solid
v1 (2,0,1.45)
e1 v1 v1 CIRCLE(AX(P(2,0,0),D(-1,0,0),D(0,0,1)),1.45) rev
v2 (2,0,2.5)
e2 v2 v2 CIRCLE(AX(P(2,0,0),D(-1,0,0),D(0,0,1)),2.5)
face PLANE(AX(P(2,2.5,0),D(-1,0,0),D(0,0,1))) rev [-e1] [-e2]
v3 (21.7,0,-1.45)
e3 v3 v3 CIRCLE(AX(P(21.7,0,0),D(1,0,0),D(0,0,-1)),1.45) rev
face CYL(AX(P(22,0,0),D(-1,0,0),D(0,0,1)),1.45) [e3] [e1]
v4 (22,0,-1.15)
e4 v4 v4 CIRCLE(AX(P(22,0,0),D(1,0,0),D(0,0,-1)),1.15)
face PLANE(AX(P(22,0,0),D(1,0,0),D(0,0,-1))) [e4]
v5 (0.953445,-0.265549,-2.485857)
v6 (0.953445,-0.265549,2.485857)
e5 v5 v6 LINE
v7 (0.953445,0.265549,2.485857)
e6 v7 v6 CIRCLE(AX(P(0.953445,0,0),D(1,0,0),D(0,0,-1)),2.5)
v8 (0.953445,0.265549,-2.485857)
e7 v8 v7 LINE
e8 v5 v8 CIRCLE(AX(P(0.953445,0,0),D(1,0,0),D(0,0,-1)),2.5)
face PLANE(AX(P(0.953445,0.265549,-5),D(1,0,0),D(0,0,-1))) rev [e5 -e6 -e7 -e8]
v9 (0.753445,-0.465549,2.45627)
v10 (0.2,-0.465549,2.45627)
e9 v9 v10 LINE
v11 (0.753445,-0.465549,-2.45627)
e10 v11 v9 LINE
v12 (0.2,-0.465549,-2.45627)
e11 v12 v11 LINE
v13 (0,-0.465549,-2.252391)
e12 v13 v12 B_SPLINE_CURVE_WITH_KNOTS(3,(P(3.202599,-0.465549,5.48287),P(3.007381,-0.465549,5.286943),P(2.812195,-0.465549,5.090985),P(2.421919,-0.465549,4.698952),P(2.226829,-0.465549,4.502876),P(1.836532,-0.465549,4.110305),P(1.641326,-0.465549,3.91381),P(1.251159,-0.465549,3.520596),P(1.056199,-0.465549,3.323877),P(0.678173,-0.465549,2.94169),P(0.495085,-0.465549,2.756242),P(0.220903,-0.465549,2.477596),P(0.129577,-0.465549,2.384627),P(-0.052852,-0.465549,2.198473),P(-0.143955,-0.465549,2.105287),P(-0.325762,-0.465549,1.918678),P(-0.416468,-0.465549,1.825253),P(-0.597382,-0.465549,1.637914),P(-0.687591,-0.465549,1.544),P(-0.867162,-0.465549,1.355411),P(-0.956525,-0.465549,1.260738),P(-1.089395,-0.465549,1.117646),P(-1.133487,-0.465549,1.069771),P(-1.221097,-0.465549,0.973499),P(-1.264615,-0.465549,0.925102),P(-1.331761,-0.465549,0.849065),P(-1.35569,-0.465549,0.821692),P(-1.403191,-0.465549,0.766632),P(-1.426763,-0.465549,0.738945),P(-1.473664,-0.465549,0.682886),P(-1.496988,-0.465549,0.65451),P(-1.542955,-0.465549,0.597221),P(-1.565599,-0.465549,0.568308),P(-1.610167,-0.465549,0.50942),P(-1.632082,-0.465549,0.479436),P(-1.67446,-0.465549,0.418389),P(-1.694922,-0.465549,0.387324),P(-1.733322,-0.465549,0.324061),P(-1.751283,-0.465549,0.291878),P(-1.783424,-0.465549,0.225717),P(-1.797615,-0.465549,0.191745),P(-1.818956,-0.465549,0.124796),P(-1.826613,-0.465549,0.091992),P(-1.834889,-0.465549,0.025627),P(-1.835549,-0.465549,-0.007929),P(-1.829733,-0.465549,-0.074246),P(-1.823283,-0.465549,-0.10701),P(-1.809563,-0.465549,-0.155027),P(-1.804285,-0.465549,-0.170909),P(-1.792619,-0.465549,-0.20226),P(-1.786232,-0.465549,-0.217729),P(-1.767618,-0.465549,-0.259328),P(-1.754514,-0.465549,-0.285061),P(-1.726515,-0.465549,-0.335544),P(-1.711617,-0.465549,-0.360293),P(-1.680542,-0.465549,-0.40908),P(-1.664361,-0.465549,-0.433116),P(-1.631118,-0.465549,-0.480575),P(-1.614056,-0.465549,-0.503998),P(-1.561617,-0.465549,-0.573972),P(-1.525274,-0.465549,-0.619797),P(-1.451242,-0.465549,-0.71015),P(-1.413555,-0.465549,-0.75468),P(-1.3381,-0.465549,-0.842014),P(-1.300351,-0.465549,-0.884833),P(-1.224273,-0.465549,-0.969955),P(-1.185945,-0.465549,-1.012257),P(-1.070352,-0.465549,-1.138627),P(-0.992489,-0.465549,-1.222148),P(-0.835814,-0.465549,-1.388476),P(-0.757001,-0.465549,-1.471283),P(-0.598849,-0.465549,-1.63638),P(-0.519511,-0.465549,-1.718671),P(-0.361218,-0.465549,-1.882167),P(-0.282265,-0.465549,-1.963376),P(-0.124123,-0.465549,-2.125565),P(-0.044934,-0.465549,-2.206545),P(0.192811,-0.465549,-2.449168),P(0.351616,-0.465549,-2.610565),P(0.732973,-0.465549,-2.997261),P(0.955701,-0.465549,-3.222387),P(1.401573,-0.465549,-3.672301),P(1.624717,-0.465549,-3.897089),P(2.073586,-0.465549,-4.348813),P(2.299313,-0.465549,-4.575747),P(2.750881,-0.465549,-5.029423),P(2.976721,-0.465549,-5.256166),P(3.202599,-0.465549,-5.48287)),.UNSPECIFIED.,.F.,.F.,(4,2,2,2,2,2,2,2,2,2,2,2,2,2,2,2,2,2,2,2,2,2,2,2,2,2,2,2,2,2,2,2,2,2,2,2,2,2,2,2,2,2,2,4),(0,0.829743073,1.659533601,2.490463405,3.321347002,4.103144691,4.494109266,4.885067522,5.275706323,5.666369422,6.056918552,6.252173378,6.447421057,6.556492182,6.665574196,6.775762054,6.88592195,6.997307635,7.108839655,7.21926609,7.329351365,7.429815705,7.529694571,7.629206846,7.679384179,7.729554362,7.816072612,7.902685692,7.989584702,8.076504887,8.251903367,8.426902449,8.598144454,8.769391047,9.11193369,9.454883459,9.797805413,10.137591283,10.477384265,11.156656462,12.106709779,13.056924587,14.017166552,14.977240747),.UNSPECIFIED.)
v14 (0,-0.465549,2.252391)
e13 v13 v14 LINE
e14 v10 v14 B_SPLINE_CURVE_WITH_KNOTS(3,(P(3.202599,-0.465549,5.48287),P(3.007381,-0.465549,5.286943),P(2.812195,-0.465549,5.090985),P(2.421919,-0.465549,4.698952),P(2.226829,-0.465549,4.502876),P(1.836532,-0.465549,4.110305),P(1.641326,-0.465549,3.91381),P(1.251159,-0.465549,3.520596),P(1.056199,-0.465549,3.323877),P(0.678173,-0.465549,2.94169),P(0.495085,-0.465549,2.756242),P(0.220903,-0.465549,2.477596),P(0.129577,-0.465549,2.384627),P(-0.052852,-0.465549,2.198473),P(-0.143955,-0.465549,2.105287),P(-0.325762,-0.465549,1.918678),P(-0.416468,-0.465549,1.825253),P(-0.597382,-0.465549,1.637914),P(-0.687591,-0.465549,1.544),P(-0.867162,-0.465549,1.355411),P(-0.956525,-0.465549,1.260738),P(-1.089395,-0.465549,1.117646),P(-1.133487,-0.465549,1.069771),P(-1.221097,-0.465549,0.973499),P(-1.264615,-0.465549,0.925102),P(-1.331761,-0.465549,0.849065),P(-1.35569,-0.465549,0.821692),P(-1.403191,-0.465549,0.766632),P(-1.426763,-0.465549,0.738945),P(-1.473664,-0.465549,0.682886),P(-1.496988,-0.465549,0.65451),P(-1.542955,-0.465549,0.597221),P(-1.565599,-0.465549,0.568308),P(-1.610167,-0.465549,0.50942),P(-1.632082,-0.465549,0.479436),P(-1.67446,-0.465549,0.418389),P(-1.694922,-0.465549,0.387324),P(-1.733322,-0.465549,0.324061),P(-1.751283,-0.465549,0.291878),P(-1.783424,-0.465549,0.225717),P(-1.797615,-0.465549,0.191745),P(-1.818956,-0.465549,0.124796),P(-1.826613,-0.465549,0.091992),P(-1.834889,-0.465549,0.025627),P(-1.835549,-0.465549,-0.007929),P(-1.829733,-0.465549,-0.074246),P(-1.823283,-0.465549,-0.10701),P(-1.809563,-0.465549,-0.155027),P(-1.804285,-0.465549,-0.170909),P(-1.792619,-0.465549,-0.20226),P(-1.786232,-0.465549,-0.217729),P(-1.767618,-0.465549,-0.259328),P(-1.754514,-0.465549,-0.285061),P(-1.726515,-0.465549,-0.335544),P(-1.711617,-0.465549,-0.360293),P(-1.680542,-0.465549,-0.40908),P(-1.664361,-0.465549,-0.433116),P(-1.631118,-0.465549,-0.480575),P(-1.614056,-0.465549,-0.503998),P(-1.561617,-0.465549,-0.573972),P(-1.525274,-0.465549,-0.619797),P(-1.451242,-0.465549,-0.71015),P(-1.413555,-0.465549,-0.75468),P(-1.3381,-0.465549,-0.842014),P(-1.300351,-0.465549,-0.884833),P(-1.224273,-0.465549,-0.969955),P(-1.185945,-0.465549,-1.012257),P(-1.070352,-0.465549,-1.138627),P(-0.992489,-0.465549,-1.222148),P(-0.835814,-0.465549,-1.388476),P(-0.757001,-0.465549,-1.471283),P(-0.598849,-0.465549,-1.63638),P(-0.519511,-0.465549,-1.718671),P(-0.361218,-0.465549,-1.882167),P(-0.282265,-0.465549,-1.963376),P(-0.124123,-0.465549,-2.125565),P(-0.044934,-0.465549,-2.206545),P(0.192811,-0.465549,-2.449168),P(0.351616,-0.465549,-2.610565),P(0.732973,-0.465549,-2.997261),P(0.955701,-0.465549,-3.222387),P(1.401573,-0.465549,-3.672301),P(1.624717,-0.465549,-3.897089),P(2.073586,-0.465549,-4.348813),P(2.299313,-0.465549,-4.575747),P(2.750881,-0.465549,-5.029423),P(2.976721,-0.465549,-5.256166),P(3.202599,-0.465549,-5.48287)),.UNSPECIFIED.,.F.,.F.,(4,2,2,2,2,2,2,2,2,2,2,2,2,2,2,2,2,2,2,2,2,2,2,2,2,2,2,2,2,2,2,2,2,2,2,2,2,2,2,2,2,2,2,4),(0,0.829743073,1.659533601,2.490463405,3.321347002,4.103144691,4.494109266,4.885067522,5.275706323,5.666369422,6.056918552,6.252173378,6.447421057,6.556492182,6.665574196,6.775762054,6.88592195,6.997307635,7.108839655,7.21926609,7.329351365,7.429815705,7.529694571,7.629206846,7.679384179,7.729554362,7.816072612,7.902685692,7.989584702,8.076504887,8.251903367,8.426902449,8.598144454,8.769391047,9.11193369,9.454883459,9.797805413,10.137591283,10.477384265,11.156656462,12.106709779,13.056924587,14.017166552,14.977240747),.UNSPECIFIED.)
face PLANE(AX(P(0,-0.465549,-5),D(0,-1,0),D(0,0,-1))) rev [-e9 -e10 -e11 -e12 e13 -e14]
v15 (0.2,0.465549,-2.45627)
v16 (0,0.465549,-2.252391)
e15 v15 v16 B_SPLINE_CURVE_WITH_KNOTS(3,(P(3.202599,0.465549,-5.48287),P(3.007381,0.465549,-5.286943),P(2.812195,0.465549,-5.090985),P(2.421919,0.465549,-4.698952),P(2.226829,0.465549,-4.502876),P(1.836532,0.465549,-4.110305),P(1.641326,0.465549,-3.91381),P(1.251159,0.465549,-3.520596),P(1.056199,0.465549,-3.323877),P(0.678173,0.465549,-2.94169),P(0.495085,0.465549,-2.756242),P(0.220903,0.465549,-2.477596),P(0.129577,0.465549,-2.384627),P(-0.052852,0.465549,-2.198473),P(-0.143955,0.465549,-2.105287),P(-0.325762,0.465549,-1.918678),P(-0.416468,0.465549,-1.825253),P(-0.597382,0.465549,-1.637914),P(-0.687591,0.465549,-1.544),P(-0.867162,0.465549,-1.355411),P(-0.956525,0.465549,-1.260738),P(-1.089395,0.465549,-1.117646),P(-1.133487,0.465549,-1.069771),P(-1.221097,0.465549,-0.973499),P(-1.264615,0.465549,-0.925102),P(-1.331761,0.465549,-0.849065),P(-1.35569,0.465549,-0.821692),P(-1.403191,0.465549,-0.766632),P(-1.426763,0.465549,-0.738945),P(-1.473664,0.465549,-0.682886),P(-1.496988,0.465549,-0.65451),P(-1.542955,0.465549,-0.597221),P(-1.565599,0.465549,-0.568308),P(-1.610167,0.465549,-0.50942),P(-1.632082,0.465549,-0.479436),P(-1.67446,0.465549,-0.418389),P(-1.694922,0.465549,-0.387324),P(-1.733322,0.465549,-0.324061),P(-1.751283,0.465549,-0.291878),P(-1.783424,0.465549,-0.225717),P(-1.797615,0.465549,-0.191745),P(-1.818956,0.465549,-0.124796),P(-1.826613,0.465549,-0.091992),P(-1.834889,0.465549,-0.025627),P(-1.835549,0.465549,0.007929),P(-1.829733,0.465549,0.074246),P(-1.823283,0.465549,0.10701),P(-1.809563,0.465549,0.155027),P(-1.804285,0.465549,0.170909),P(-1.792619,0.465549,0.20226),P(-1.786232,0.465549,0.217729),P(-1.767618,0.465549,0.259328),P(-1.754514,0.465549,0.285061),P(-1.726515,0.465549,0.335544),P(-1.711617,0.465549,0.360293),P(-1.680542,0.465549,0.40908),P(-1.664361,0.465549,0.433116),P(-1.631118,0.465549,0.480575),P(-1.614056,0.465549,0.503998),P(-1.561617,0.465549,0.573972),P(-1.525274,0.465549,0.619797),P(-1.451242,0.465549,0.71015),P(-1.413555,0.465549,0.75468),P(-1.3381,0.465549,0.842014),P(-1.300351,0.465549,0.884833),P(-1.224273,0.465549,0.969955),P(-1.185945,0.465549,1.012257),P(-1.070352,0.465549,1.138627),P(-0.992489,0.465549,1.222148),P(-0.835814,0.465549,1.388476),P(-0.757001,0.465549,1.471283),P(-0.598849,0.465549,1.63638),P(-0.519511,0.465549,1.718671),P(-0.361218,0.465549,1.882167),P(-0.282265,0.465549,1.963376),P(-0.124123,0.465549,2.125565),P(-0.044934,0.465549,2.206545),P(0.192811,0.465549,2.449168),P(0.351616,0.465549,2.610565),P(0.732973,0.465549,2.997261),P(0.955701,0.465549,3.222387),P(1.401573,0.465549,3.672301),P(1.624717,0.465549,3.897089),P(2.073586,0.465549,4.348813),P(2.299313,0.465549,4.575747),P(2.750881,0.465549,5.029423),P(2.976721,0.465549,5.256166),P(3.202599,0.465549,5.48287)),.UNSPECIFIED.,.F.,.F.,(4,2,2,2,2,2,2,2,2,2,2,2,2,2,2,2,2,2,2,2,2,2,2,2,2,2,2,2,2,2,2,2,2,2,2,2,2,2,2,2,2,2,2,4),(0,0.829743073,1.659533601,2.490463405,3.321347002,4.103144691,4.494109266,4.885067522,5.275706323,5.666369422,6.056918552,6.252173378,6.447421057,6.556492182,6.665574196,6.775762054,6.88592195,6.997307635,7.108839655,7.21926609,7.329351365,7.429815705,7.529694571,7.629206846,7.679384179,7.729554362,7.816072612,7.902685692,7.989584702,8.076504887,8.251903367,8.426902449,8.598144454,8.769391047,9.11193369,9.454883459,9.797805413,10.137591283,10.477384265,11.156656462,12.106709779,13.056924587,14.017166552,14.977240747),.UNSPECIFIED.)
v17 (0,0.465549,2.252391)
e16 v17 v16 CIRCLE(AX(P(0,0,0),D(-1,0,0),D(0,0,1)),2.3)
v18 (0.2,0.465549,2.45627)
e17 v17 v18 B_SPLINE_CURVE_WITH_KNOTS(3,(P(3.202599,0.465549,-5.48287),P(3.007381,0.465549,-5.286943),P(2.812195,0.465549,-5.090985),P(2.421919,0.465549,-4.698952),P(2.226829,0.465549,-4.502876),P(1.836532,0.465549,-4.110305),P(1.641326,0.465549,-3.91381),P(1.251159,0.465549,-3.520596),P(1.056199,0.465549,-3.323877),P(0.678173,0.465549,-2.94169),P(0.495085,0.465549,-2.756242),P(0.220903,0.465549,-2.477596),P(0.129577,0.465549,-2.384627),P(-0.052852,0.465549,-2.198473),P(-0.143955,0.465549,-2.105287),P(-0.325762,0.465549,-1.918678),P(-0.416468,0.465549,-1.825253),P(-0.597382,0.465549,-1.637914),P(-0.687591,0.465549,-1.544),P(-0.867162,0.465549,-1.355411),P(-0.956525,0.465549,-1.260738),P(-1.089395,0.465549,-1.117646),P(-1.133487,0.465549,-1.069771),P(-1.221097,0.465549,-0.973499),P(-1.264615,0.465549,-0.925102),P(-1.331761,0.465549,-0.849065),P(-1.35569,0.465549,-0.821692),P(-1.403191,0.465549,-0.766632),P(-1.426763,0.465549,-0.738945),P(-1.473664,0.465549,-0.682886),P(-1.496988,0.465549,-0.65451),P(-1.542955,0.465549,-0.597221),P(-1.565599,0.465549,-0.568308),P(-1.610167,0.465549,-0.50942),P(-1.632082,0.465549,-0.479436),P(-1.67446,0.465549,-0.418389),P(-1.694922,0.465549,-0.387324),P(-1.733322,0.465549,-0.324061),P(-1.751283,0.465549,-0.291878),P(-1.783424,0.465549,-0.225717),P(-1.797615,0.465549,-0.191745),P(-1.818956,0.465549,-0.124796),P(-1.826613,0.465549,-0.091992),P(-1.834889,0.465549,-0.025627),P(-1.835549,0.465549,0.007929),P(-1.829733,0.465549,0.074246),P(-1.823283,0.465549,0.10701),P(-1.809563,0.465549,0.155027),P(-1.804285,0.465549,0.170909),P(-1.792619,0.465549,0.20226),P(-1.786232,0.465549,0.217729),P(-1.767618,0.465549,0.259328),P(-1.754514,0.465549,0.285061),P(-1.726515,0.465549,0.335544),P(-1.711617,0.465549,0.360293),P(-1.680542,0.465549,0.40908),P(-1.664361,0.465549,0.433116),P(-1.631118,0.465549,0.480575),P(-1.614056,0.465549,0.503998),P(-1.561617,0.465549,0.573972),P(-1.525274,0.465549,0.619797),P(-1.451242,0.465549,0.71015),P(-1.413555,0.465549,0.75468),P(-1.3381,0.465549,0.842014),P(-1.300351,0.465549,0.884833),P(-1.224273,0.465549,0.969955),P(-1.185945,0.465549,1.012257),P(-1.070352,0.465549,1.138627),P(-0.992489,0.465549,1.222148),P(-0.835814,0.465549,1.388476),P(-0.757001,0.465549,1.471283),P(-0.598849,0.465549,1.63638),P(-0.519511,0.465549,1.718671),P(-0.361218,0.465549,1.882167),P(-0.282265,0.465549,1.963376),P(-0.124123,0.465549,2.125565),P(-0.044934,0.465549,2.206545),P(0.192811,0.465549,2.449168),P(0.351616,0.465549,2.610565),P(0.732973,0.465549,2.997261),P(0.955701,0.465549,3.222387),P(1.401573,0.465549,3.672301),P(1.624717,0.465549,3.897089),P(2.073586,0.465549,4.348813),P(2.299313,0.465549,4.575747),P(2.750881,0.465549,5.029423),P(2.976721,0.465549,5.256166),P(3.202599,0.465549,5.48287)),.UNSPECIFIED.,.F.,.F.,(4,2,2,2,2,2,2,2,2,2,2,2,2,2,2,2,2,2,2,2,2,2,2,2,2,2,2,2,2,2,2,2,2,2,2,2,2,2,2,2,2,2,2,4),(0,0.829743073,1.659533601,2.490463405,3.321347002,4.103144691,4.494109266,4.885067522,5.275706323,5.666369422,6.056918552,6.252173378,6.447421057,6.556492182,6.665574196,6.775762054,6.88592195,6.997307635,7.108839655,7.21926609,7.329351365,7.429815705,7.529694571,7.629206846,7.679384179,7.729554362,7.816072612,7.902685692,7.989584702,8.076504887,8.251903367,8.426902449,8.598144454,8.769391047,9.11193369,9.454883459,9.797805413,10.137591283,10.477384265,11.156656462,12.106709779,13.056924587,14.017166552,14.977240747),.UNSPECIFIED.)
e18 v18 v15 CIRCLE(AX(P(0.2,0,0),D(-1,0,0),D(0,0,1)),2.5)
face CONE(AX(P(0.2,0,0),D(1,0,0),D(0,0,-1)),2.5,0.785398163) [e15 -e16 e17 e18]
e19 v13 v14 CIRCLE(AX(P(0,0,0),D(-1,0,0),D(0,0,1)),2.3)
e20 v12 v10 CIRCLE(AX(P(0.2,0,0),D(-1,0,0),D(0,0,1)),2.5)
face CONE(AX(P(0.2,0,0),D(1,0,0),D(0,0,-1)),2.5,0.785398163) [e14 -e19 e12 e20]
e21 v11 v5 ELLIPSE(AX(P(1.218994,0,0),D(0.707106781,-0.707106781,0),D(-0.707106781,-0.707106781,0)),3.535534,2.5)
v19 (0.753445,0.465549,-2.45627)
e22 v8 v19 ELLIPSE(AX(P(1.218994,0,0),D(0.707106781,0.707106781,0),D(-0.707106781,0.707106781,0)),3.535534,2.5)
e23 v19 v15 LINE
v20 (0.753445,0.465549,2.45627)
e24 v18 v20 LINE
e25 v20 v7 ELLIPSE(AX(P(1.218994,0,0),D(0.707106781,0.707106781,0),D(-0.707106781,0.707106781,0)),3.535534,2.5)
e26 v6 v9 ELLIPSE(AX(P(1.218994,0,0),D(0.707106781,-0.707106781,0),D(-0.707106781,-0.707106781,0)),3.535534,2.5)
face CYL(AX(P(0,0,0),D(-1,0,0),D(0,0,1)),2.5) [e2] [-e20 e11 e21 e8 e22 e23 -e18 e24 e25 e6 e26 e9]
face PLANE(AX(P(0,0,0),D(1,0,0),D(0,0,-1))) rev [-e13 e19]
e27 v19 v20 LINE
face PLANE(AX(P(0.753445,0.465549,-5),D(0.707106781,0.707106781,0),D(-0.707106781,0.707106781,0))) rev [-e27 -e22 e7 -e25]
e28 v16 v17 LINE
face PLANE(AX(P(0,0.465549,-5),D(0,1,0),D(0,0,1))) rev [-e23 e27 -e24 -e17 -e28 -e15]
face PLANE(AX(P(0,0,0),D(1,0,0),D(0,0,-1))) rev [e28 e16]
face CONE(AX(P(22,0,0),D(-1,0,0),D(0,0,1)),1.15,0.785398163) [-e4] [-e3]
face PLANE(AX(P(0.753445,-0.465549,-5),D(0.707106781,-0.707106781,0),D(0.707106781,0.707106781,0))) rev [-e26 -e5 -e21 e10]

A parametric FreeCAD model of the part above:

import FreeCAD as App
import Part
import Sketcher
Q = App.Units.Quantity


def edges_at(feature, points):
    """Names of the edges that pass closest to the given points."""
    edges = feature.Shape.Edges
    near = lambda p: min(range(len(edges)), key=lambda i: edges[i].distToShape(Part.Vertex(*p))[0])
    return sorted({f"Edge{near(p) + 1}" for p in points})

doc = App.newDocument("Part")
body = doc.addObject("PartDesign::Body", "Body")

sketch1 = body.newObject("Sketcher::SketchObject", "Sketch")
sketch1.AttachmentSupport = (doc.getObject("XY_Plane"), [""])
sketch1.MapMode = "FlatFace"
sketch1.addGeometry(Part.LineSegment(App.Vector(0, 2.3, 0), App.Vector(0, 0, 0)), False)
sketch1.addGeometry(Part.LineSegment(App.Vector(0, 0, 0), App.Vector(2, 0, 0)), False)
sketch1.addGeometry(Part.LineSegment(App.Vector(2, 0, 0), App.Vector(2, 2.5, 0)), False)
sketch1.addGeometry(Part.LineSegment(App.Vector(2, 2.5, 0), App.Vector(0.2, 2.5, 0)), False)
sketch1.addGeometry(Part.LineSegment(App.Vector(0.2, 2.5, 0), App.Vector(0, 2.3, 0)), False)
sketch1.addConstraint(Sketcher.Constraint("Coincident", 0, 2, 1, 1))
sketch1.addConstraint(Sketcher.Constraint("Coincident", 1, 2, 2, 1))
sketch1.addConstraint(Sketcher.Constraint("Coincident", 2, 2, 3, 1))
sketch1.addConstraint(Sketcher.Constraint("Coincident", 3, 2, 4, 1))
sketch1.addConstraint(Sketcher.Constraint("Coincident", 4, 2, 0, 1))
sketch1.addConstraint(Sketcher.Constraint("Vertical", 0))
sketch1.addConstraint(Sketcher.Constraint("Horizontal", 1))
sketch1.addConstraint(Sketcher.Constraint("Vertical", 2))
sketch1.addConstraint(Sketcher.Constraint("Horizontal", 3))
sketch1.addConstraint(Sketcher.Constraint("Coincident", 0, 2, -1, 1))
sketch1.addConstraint(Sketcher.Constraint("DistanceX", 1, 1, 1, 2, Q("2 mm")))
sketch1.addConstraint(Sketcher.Constraint("Angle", 4, Q("-135 deg")))
sketch1.addConstraint(Sketcher.Constraint("DistanceX", 3, 2, 3, 1, Q("1.8 mm")))
sketch1.addConstraint(Sketcher.Constraint("DistanceY", 0, 2, 0, 1, Q("2.3 mm")))
revolution = body.newObject("PartDesign::Revolution", "Revolution")
revolution.Profile = sketch1
revolution.ReferenceAxis = (sketch1, ["H_Axis"])
revolution.Angle = 360

sketch2 = body.newObject("Sketcher::SketchObject", "Sketch001")
sketch2.AttachmentSupport = (doc.getObject("XY_Plane"), [""])
sketch2.MapMode = "FlatFace"
sketch2.addGeometry(Part.LineSegment(App.Vector(0.75, 0.47, 0), App.Vector(0, 0.47, 0)), False)
sketch2.addGeometry(Part.LineSegment(App.Vector(0, 0.47, 0), App.Vector(0, -0.47, 0)), False)
sketch2.addGeometry(Part.LineSegment(App.Vector(0, -0.47, 0), App.Vector(0.75, -0.47, 0)), False)
sketch2.addGeometry(Part.LineSegment(App.Vector(0.75, -0.47, 0), App.Vector(0.95, -0.27, 0)), False)
sketch2.addGeometry(Part.LineSegment(App.Vector(0.95, -0.27, 0), App.Vector(0.95, 0.27, 0)), False)
sketch2.addGeometry(Part.LineSegment(App.Vector(0.95, 0.27, 0), App.Vector(0.75, 0.47, 0)), False)
sketch2.addConstraint(Sketcher.Constraint("Coincident", 0, 2, 1, 1))
sketch2.addConstraint(Sketcher.Constraint("Coincident", 1, 2, 2, 1))
sketch2.addConstraint(Sketcher.Constraint("Coincident", 2, 2, 3, 1))
sketch2.addConstraint(Sketcher.Constraint("Coincident", 3, 2, 4, 1))
sketch2.addConstraint(Sketcher.Constraint("Coincident", 4, 2, 5, 1))
sketch2.addConstraint(Sketcher.Constraint("Coincident", 5, 2, 0, 1))
sketch2.addConstraint(Sketcher.Constraint("Horizontal", 0))
sketch2.addConstraint(Sketcher.Constraint("Vertical", 1))
sketch2.addConstraint(Sketcher.Constraint("Horizontal", 2))
sketch2.addConstraint(Sketcher.Constraint("Vertical", 4))
sketch2.addConstraint(Sketcher.Constraint("Symmetric", 0, 2, 1, 2, -1, 1))
sketch2.addConstraint(Sketcher.Constraint("Perpendicular", 3, 5))
sketch2.addConstraint(Sketcher.Constraint("Vertical", 2, 2, 5, 2))
sketch2.addConstraint(Sketcher.Constraint("Equal", 3, 5))
sketch2.addConstraint(Sketcher.Constraint("DistanceX", 2, 2, 3, 2, Q("0.2 mm")))
sketch2.addConstraint(Sketcher.Constraint("DistanceY", 1, 2, 1, 1, Q("0.931099 mm")))
sketch2.addConstraint(Sketcher.Constraint("DistanceX", 0, 2, 0, 1, Q("0.753445 mm")))
pocket1 = body.newObject("PartDesign::Pocket", "Pocket")
pocket1.Profile = sketch2
pocket1.Length = 10
pocket1.Midplane = True

sketch3 = body.newObject("Sketcher::SketchObject", "Sketch002")
sketch3.AttachmentSupport = (doc.getObject("YZ_Plane"), [""])
sketch3.MapMode = "FlatFace"
sketch3.AttachmentOffset = App.Placement(App.Vector(0, 0, 2), App.Rotation())
sketch3.addGeometry(Part.Circle(App.Vector(0, 0, 0), App.Vector(0, 0, 1), 1.4), False)
sketch3.addConstraint(Sketcher.Constraint("Coincident", 0, 3, -1, 1))
sketch3.addConstraint(Sketcher.Constraint("Diameter", 0, Q("2.9 mm")))
pad1 = body.newObject("PartDesign::Pad", "Pad")
pad1.Profile = sketch3
pad1.Length = 20
doc.recompute()

chamfer = body.newObject("PartDesign::Chamfer", "Chamfer")
chamfer.Base = (pad1, edges_at(pad1, [(22, 0, -1.45)]))
chamfer.Size = 0.3

doc.recompute()
